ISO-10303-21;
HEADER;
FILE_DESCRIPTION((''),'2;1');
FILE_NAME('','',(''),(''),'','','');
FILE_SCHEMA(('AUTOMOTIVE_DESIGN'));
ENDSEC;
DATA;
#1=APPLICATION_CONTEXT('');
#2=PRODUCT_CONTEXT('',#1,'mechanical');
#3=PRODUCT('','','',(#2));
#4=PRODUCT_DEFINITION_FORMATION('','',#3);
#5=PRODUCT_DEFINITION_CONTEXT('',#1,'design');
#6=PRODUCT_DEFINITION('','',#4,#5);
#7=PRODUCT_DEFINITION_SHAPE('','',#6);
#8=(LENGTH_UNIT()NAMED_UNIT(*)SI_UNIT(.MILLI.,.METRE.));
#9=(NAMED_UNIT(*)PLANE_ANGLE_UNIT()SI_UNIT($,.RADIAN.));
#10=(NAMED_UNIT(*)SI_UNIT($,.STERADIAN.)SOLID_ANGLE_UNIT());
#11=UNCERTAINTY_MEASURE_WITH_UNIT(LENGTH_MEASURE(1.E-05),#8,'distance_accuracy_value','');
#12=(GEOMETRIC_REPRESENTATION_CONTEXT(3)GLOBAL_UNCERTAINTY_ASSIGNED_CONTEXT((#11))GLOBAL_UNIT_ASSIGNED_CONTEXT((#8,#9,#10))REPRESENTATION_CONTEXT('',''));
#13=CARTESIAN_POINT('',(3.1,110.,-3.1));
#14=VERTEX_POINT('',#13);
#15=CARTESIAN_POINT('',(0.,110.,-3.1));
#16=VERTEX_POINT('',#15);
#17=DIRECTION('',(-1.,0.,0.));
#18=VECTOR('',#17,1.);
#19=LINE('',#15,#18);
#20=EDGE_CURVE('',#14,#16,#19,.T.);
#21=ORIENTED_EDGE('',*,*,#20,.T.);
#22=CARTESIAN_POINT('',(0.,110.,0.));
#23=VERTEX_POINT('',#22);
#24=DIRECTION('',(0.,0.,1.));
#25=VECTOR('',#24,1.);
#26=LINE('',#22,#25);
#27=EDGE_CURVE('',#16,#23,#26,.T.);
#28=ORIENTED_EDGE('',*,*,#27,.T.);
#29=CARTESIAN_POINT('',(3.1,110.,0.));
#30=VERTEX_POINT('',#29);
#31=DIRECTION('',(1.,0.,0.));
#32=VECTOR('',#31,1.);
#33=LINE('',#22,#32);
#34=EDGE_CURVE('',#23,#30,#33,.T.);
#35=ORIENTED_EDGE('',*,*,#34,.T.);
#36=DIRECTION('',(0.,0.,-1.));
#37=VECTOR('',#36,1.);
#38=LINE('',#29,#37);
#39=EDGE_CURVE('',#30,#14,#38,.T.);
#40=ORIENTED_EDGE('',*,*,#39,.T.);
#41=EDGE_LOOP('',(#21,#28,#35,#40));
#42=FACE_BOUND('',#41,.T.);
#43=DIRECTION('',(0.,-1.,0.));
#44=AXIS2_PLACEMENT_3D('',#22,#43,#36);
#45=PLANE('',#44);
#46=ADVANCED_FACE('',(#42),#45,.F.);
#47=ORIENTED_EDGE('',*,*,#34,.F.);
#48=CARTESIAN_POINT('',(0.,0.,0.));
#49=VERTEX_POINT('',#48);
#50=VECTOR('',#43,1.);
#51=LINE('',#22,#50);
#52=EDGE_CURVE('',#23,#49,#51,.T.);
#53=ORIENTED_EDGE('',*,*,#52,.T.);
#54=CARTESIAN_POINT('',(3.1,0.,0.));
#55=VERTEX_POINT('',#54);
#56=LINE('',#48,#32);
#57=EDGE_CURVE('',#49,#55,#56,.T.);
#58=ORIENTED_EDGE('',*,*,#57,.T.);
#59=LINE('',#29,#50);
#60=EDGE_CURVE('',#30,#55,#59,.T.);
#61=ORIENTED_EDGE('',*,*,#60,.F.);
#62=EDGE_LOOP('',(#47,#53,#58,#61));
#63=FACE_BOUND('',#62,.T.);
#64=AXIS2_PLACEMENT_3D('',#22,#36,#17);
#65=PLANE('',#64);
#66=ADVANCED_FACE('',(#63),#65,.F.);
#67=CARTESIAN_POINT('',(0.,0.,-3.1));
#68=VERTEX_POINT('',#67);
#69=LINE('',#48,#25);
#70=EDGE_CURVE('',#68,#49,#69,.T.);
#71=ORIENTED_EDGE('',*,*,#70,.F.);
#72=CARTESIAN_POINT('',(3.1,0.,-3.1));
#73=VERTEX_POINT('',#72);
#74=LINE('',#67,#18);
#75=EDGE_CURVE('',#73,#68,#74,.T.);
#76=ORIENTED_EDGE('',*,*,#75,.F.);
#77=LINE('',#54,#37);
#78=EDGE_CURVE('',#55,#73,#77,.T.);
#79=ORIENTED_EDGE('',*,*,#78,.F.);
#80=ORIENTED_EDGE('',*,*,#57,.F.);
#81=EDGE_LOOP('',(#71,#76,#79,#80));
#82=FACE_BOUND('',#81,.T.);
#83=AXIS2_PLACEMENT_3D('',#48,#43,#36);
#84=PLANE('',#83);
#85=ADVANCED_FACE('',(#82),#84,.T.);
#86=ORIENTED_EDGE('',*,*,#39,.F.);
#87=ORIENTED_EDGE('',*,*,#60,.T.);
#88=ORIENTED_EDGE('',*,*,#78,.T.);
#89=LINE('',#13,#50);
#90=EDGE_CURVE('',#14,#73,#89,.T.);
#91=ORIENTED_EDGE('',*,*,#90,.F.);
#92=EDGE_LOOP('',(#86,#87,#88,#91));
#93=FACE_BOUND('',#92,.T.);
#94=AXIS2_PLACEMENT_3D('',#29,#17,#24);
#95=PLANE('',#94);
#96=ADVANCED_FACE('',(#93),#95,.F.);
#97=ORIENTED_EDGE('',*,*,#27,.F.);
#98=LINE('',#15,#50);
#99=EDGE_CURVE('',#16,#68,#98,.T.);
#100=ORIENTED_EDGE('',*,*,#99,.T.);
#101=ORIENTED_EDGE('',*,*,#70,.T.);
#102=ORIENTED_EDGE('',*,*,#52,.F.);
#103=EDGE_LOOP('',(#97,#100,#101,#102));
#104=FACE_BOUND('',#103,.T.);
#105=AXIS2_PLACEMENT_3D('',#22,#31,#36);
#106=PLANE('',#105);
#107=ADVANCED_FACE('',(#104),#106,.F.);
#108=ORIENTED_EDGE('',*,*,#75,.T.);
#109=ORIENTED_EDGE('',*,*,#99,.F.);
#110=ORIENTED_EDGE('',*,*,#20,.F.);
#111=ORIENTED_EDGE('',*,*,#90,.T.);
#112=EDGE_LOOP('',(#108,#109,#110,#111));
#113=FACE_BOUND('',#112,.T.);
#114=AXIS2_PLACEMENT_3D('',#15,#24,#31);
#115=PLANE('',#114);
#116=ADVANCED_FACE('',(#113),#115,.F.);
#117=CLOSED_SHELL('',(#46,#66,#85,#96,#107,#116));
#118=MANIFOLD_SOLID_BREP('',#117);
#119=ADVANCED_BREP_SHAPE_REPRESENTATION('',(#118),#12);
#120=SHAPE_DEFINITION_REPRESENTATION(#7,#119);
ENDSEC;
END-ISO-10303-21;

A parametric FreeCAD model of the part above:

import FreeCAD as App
import Part
import Sketcher

V = App.Vector


def add_polygon(sketch, points):
    """Adds a closed chain of lines whose ends are joined by coincident constraints."""
    first, n = sketch.GeometryCount, len(points)
    for a, b in zip(points, points[1:] + points[:1]):
        sketch.addGeometry(Part.LineSegment(App.Vector(*a, 0), App.Vector(*b, 0)), False)
    for i in range(n):
        sketch.addConstraint(Sketcher.Constraint("Coincident", first + i, 2, first + (i + 1) % n, 1))

doc = App.newDocument("Part")
body = doc.addObject("PartDesign::Body", "Body")

# Sketch on XZ plane
sketch1 = body.newObject("Sketcher::SketchObject", "Sketch")
sketch1.AttachmentSupport = (doc.getObject("XZ_Plane"), [""])
sketch1.MapMode = "FlatFace"
add_polygon(sketch1, [(0, -3.1), (0, 0), (3.1, 0), (3.1, -3.1)])  # lines 0-3
sketch1.addConstraint([
    Sketcher.Constraint("Vertical", 0),
    Sketcher.Constraint("Horizontal", 1),
    Sketcher.Constraint("Vertical", 2),
    Sketcher.Constraint("Horizontal", 3),
    Sketcher.Constraint("Coincident", 0, 2, -1, 1),
    Sketcher.Constraint("Equal", 3, 0),
    Sketcher.Constraint("DistanceX", 1, 1, 1, 2, 3.1),
])
pad1 = body.newObject("PartDesign::Pad", "Pad")
pad1.Profile = sketch1
pad1.Length = 110
pad1.Reversed = True

doc.recompute()
